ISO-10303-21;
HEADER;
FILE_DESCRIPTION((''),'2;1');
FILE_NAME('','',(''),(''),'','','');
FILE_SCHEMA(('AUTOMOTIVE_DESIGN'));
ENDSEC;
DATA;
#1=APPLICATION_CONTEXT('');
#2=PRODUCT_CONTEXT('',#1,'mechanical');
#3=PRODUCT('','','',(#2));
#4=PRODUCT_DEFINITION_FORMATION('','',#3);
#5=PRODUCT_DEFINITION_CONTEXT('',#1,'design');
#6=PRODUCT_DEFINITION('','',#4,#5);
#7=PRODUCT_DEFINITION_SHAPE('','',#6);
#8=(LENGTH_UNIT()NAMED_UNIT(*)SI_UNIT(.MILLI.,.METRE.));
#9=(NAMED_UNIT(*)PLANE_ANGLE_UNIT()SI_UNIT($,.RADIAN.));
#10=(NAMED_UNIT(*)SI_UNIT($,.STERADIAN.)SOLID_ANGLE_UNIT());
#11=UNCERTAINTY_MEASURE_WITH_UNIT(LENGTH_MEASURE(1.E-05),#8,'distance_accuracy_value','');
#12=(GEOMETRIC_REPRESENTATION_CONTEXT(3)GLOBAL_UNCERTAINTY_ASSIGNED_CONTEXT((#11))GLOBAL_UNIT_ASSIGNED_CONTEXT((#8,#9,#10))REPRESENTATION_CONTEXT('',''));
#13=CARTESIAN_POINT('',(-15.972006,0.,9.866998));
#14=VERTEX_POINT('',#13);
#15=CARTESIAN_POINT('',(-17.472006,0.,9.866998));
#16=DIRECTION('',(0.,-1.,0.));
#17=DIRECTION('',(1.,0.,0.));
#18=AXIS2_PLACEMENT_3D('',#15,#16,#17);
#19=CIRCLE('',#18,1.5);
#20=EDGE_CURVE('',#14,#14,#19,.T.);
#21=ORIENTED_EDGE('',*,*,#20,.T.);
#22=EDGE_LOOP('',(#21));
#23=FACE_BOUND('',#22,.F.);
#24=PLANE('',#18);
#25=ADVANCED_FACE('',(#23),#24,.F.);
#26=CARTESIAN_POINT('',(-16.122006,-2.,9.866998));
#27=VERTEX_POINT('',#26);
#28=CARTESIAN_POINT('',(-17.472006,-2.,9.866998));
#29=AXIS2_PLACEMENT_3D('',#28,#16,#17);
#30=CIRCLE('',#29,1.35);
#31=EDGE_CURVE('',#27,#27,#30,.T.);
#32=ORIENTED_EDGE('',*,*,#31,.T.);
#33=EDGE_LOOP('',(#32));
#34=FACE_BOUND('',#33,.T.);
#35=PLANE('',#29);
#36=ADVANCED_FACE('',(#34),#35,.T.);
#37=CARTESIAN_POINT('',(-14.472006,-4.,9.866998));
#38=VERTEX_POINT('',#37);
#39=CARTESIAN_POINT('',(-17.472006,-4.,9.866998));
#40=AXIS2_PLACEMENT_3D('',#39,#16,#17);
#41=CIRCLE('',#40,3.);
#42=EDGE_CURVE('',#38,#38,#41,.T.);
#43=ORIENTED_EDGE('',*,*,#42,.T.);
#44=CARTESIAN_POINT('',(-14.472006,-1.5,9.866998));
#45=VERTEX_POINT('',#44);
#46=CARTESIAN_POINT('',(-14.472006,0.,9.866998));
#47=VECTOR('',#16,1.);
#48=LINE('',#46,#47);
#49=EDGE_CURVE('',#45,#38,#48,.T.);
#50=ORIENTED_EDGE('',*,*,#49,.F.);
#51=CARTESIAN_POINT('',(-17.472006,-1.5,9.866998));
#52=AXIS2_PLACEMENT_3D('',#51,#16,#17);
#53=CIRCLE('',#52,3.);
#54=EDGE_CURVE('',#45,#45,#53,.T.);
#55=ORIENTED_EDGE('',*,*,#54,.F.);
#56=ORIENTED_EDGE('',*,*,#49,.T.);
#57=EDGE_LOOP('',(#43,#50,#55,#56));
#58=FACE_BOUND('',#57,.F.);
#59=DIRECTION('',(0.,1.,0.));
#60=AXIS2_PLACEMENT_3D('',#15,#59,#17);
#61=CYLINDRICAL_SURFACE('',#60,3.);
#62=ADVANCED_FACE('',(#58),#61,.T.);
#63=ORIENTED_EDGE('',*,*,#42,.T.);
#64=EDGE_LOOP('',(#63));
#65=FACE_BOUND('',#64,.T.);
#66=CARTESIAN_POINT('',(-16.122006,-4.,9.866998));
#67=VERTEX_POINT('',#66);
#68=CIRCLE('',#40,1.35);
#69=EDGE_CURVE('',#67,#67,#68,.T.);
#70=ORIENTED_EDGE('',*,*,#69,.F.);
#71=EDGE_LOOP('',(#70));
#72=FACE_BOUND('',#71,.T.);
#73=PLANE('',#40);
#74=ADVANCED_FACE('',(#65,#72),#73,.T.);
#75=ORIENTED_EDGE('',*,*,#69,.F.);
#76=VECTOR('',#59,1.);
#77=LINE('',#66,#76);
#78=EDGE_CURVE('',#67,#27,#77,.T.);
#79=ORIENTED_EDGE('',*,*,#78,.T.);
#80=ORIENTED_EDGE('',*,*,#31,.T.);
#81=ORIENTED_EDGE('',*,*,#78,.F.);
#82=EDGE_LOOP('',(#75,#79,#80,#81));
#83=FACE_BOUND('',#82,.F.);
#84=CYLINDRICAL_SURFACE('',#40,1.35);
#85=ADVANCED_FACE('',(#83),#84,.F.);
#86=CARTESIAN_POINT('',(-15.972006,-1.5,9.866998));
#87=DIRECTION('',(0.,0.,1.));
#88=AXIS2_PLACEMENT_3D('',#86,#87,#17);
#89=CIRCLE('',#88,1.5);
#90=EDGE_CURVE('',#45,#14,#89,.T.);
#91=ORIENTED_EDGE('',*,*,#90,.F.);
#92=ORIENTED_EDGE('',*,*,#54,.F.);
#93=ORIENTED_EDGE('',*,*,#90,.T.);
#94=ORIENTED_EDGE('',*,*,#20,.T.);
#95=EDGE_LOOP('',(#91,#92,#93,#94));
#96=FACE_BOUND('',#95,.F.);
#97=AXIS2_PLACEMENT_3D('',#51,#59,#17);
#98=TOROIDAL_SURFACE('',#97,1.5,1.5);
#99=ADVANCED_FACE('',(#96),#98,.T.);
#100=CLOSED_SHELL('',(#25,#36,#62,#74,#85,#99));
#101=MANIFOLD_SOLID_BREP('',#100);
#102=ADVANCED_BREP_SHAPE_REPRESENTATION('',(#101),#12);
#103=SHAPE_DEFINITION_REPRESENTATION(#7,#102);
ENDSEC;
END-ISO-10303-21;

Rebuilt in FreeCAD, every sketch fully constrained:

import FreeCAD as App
import Part
import Sketcher

V = App.Vector
Q = App.Units.Quantity


def edges_at(feature, points):
    """Names of the edges that pass closest to the given points."""
    edges = feature.Shape.Edges
    near = lambda p: min(range(len(edges)), key=lambda i: edges[i].distToShape(Part.Vertex(*p))[0])
    return sorted({f"Edge{near(p) + 1}" for p in points})

doc = App.newDocument("Part")
params = doc.addObject("Spreadsheet::Sheet", "Params")
for row, (alias, value) in enumerate([
    ("sketch1_diameter", "6 mm"),
    ("pad1_length", "4 mm"),
    ("sketch2_diameter", "2.7 mm"),
    ("pocket1_length", "2 mm"),
    ("fillet_radius", "1.5 mm"),
], start=1):
    params.set(f"A{row}", alias)
    params.set(f"B{row}", "=" + value)
    params.setAlias(f"B{row}", alias)

body = doc.addObject("PartDesign::Body", "Body")

# Sketch on XZ plane
sketch1 = body.newObject("Sketcher::SketchObject", "Sketch")
sketch1.AttachmentSupport = (doc.getObject("XZ_Plane"), [""])
sketch1.MapMode = "FlatFace"
sketch1.addGeometry(Part.Circle(V(-17.5, 9.9, 0), V(0, 0, 1), 3), False)
sketch1.addConstraint([
    Sketcher.Constraint("Diameter", 0, Q("6 mm")),
    Sketcher.Constraint("DistanceX", 0, 3, -1, 1, Q("17.472006 mm")),
    Sketcher.Constraint("DistanceY", -1, 1, 0, 3, Q("9.866998 mm")),
])
sketch1.setExpression("Constraints[0]", "Params.sketch1_diameter")
pad1 = body.newObject("PartDesign::Pad", "Pad")
pad1.Profile = sketch1
pad1.setExpression("Length", "Params.pad1_length")

# Sketch on XZ plane
sketch2 = body.newObject("Sketcher::SketchObject", "Sketch001")
sketch2.AttachmentSupport = (doc.getObject("XZ_Plane"), [""])
sketch2.MapMode = "FlatFace"
sketch2.AttachmentOffset = App.Placement(V(0, 0, 4), App.Rotation())
sketch2.addGeometry(Part.Circle(V(-17.5, 9.9, 0), V(0, 0, 1), 1.4), False)
sketch2.addConstraint([
    Sketcher.Constraint("Diameter", 0, Q("2.7 mm")),
    Sketcher.Constraint("DistanceX", 0, 3, -1, 1, Q("17.472006 mm")),
    Sketcher.Constraint("DistanceY", -1, 1, 0, 3, Q("9.866998 mm")),
])
sketch2.setExpression("Constraints[0]", "Params.sketch2_diameter")
pocket1 = body.newObject("PartDesign::Pocket", "Pocket")
pocket1.Profile = sketch2
pocket1.setExpression("Length", "Params.pocket1_length")
doc.recompute()

fillet = body.newObject("PartDesign::Fillet", "Fillet")
fillet.Base = (pocket1, edges_at(pocket1, [(-20.472, 0, 9.867)]))
fillet.setExpression("Radius", "Params.fillet_radius")

doc.recompute()
